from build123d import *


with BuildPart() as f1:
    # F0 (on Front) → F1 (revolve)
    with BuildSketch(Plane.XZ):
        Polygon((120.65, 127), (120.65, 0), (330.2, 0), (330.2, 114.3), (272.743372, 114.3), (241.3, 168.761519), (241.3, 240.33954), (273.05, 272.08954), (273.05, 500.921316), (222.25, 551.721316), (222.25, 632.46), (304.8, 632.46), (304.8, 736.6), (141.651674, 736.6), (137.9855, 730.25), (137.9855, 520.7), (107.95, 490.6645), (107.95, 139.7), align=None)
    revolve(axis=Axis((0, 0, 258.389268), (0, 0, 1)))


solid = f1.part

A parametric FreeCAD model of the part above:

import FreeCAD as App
import Part
import Sketcher
from FreeCAD import Vector
Q = App.Units.Quantity

doc = App.newDocument("Part")
params = doc.addObject("Spreadsheet::Sheet", "Params")
for row, (alias, value) in enumerate([
    ("sketch1_height", "5 in"),
    ("sketch1_height2", "4.5 in"),
    ("sketch1_height3", "4.1 in"),
    ("sketch1_width", "8.25 in"),
    ("sketch1_width2", "3.25 in"),
    ("revolution_angle", "360 deg"),
], start=1):
    params.set(f"A{row}", alias)
    params.set(f"B{row}", "=" + value)
    params.setAlias(f"B{row}", alias)

body = doc.addObject("PartDesign::Body", "Body")

sketch1 = body.newObject("Sketcher::SketchObject", "Sketch")
sketch1.AttachmentSupport = (doc.getObject("XZ_Plane"), [""])
sketch1.MapMode = "FlatFace"
sketch1.addGeometry([
    Part.LineSegment(Vector(121, 127, 0), Vector(121, 0, 0)),
    Part.LineSegment(Vector(121, 0, 0), Vector(330, 0, 0)),
    Part.LineSegment(Vector(330, 0, 0), Vector(330, 114, 0)),
    Part.LineSegment(Vector(330, 114, 0), Vector(273, 114, 0)),
    Part.LineSegment(Vector(273, 114, 0), Vector(241, 169, 0)),
    Part.LineSegment(Vector(241, 169, 0), Vector(241, 240, 0)),
    Part.LineSegment(Vector(241, 240, 0), Vector(273, 272, 0)),
    Part.LineSegment(Vector(273, 272, 0), Vector(273, 501, 0)),
    Part.LineSegment(Vector(273, 501, 0), Vector(222, 552, 0)),
    Part.LineSegment(Vector(222, 552, 0), Vector(222, 632, 0)),
    Part.LineSegment(Vector(222, 632, 0), Vector(305, 632, 0)),
    Part.LineSegment(Vector(305, 632, 0), Vector(305, 737, 0)),
    Part.LineSegment(Vector(305, 737, 0), Vector(142, 737, 0)),
    Part.LineSegment(Vector(142, 737, 0), Vector(138, 730, 0)),
    Part.LineSegment(Vector(138, 730, 0), Vector(138, 521, 0)),
    Part.LineSegment(Vector(138, 521, 0), Vector(108, 491, 0)),
    Part.LineSegment(Vector(108, 491, 0), Vector(108, 140, 0)),
    Part.LineSegment(Vector(108, 140, 0), Vector(121, 127, 0)),
], False)
sketch1.addConstraint([
    Sketcher.Constraint("Coincident", 0, 2, 1, 1),
    Sketcher.Constraint("Coincident", 1, 2, 2, 1),
    Sketcher.Constraint("Coincident", 2, 2, 3, 1),
    Sketcher.Constraint("Coincident", 3, 2, 4, 1),
    Sketcher.Constraint("Coincident", 4, 2, 5, 1),
    Sketcher.Constraint("Coincident", 5, 2, 6, 1),
    Sketcher.Constraint("Coincident", 6, 2, 7, 1),
    Sketcher.Constraint("Coincident", 7, 2, 8, 1),
    Sketcher.Constraint("Coincident", 8, 2, 9, 1),
    Sketcher.Constraint("Coincident", 9, 2, 10, 1),
    Sketcher.Constraint("Coincident", 10, 2, 11, 1),
    Sketcher.Constraint("Coincident", 11, 2, 12, 1),
    Sketcher.Constraint("Coincident", 12, 2, 13, 1),
    Sketcher.Constraint("Coincident", 13, 2, 14, 1),
    Sketcher.Constraint("Coincident", 14, 2, 15, 1),
    Sketcher.Constraint("Coincident", 15, 2, 16, 1),
    Sketcher.Constraint("Coincident", 16, 2, 17, 1),
    Sketcher.Constraint("Coincident", 17, 2, 0, 1),
    Sketcher.Constraint("Vertical", 0),
    Sketcher.Constraint("Horizontal", 1),
    Sketcher.Constraint("Vertical", 2),
    Sketcher.Constraint("Horizontal", 3),
    Sketcher.Constraint("Vertical", 5),
    Sketcher.Constraint("Vertical", 7),
    Sketcher.Constraint("Vertical", 9),
    Sketcher.Constraint("Horizontal", 10),
    Sketcher.Constraint("Vertical", 11),
    Sketcher.Constraint("Horizontal", 12),
    Sketcher.Constraint("Vertical", 14),
    Sketcher.Constraint("Vertical", 16),
    Sketcher.Constraint("PointOnObject", 0, 2, -1),
    Sketcher.Constraint("Perpendicular", 6, 8),
    Sketcher.Constraint("Perpendicular", 8, 15),
    Sketcher.Constraint("Perpendicular", 15, 17),
    Sketcher.Constraint("Equal", 1, 14),
    Sketcher.Constraint("DistanceY", 0, 2, 0, 1, Q("5 in")),
    Sketcher.Constraint("DistanceY", 2, 1, 2, 2, Q("4.5 in")),
    Sketcher.Constraint("DistanceY", 11, 1, 11, 2, Q("4.1 in")),
    Sketcher.Constraint("DistanceX", -1, 1, 1, 2, Q("13 in")),
    Sketcher.Constraint("DistanceX", -1, 1, 10, 2, Q("12 in")),
    Sketcher.Constraint("DistanceY", -1, 1, 11, 2, Q("29 in")),
    Sketcher.Constraint("Angle", 4, Q("119.999999 deg")),
    Sketcher.Constraint("Angle", 6, Q("45 deg")),
    Sketcher.Constraint("Angle", 13, Q("-119.999999 deg")),
    Sketcher.Constraint("DistanceX", 8, 2, 7, 2, Q("2 in")),
    Sketcher.Constraint("DistanceY", 3, 2, 16, 2, Q("1 in")),
    Sketcher.Constraint("DistanceX", 1, 1, 1, 2, Q("8.25 in")),
    Sketcher.Constraint("DistanceX", 10, 1, 10, 2, Q("3.25 in")),
    Sketcher.Constraint("DistanceX", -1, 1, 4, 2, Q("9.5 in")),
    Sketcher.Constraint("DistanceY", -1, 1, 14, 2, Q("20.5 in")),
    Sketcher.Constraint("DistanceY", 16, 2, 16, 1, Q("13.8175 in")),
    Sketcher.Constraint("DistanceY", 5, 1, 5, 2, Q("71.578021 mm")),
    Sketcher.Constraint("DistanceX", 3, 2, 3, 1, Q("57.456628 mm")),
    Sketcher.Constraint("DistanceY", 7, 1, 7, 2, Q("228.831776 mm")),
])
sketch1.setExpression("Constraints[35]", "Params.sketch1_height")
sketch1.setExpression("Constraints[36]", "Params.sketch1_height2")
sketch1.setExpression("Constraints[37]", "Params.sketch1_height3")
sketch1.setExpression("Constraints[46]", "Params.sketch1_width")
sketch1.setExpression("Constraints[47]", "Params.sketch1_width2")
revolution = body.newObject("PartDesign::Revolution", "Revolution")
revolution.Profile = sketch1
revolution.ReferenceAxis = (sketch1, ["V_Axis"])
revolution.setExpression("Angle", "Params.revolution_angle")

doc.recompute()
